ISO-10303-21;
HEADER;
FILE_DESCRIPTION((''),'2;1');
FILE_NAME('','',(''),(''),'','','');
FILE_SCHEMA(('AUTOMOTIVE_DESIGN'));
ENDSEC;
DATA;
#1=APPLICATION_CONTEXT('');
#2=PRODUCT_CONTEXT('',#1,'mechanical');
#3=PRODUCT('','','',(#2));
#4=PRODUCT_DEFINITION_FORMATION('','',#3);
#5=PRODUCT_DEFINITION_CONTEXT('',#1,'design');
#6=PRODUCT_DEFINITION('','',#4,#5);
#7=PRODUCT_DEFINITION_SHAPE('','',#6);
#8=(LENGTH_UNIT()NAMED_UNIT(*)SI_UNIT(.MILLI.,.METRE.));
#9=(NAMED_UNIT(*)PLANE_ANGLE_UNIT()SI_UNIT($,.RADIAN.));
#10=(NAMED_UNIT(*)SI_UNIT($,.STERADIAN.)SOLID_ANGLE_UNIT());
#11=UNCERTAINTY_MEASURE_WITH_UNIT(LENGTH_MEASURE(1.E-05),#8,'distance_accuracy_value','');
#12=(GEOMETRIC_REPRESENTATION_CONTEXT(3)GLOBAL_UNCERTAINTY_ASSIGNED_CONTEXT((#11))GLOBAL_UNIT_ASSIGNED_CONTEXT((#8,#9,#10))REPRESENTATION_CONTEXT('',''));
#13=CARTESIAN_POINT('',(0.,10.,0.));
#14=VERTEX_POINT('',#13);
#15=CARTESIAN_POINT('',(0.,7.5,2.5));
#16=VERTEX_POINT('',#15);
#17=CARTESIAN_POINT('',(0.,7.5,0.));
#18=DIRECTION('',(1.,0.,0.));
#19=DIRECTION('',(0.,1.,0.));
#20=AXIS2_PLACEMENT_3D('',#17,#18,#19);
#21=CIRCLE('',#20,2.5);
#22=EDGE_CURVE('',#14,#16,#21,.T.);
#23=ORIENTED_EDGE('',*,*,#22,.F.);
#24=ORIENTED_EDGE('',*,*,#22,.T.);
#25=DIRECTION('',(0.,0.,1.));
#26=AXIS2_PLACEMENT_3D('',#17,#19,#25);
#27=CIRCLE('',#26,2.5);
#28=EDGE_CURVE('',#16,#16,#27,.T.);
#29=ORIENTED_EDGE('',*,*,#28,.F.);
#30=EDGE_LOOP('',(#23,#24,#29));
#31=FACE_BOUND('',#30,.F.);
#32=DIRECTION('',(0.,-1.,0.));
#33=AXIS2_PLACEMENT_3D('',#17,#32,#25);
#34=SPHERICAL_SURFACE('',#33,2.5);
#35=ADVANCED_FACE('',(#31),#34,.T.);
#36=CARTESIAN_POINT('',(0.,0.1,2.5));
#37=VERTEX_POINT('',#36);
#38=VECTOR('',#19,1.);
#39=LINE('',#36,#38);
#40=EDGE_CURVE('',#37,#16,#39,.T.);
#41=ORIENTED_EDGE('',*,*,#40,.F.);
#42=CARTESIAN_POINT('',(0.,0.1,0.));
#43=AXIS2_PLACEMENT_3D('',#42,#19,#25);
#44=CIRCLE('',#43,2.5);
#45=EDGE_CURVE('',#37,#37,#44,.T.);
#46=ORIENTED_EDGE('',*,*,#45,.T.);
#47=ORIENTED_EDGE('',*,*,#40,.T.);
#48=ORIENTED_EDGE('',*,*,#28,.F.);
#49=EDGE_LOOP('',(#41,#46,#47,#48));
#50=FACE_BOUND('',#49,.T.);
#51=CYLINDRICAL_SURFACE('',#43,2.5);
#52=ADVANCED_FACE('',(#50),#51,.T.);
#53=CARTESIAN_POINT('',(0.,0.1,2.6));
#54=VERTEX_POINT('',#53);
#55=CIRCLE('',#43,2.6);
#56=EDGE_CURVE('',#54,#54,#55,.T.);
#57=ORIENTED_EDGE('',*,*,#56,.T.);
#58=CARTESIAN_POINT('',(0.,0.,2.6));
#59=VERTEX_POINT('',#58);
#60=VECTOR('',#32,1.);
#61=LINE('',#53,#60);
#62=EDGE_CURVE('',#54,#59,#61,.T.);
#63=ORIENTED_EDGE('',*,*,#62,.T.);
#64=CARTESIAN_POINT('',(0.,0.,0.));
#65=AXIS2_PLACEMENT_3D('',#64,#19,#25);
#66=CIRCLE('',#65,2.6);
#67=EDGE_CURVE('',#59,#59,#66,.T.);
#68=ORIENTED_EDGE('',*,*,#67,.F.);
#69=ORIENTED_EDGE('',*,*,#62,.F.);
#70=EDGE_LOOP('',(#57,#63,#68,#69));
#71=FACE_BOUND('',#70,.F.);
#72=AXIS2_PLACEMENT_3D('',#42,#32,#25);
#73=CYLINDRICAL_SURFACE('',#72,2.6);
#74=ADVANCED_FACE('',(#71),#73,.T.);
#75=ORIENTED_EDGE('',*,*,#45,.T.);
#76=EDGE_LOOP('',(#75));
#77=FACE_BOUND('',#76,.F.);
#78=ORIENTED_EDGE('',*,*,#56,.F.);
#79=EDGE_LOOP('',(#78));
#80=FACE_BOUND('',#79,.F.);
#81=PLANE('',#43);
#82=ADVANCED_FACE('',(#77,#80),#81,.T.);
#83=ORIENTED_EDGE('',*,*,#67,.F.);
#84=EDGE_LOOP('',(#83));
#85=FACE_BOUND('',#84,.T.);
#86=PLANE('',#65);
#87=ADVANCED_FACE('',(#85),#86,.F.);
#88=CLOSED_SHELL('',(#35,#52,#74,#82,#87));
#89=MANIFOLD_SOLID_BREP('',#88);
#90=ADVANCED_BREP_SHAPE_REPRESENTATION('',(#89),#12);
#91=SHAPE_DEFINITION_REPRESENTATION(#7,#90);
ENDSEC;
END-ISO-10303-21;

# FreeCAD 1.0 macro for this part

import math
import FreeCAD as App
import Part
import Sketcher
from FreeCAD import Vector

doc = App.newDocument("Part")
params = doc.addObject("Spreadsheet::Sheet", "Params")
for row, (alias, value) in enumerate([
    ("sketch1_radius", "2.5 mm"),
    ("sketch1_width", "10 mm"),
    ("sketch1_width2", "0.1 mm"),
    ("revolution_angle", "360 deg"),
], start=1):
    params.set(f"A{row}", alias)
    params.set(f"B{row}", "=" + value)
    params.setAlias(f"B{row}", alias)

body = doc.addObject("PartDesign::Body", "Body")

# Sketch on YZ plane
sketch1 = doc.addObject("Sketcher::SketchObject", "Sketch")
body.addObject(sketch1)
sketch1.AttachmentSupport = (doc.YZ_Plane, [""])
sketch1.MapMode = "FlatFace"
sketch1.addGeometry([
    Part.LineSegment(Vector(0, 2.6, 0), Vector(0, 0, 0)),  # 0
    Part.LineSegment(Vector(0, 0, 0), Vector(10, 0, 0)),  # 1
    Part.ArcOfCircle(Part.Circle(Vector(7.5, 0, 0), Vector(0, 0, 1), 2.5), math.radians(0), math.radians(90)),  # 2
    Part.LineSegment(Vector(7.5, 2.5, 0), Vector(0.1, 2.5, 0)),  # 3
    Part.LineSegment(Vector(0.1, 2.5, 0), Vector(0.1, 2.6, 0)),  # 4
    Part.LineSegment(Vector(0.1, 2.6, 0), Vector(0, 2.6, 0)),  # 5
], False)
sketch1.addConstraint([
    Sketcher.Constraint("Coincident", 0, 2, 1, 1),
    Sketcher.Constraint("Coincident", 1, 2, 2, 1),
    Sketcher.Constraint("Tangent", 2, 2, 3, 1),
    Sketcher.Constraint("Coincident", 3, 2, 4, 1),
    Sketcher.Constraint("Coincident", 4, 2, 5, 1),
    Sketcher.Constraint("Coincident", 5, 2, 0, 1),
    Sketcher.Constraint("Vertical", 0),
    Sketcher.Constraint("Horizontal", 1),
    Sketcher.Constraint("Horizontal", 3),
    Sketcher.Constraint("Vertical", 4),
    Sketcher.Constraint("Horizontal", 5),
    Sketcher.Constraint("Coincident", 0, 2, -1, 1),
    Sketcher.Constraint("PointOnObject", 2, 3, -1),
    Sketcher.Constraint("Equal", 5, 4),
    Sketcher.Constraint("Radius", 2, 2.5),
    Sketcher.Constraint("DistanceX", 1, 1, 1, 2, 10.0),
    Sketcher.Constraint("DistanceX", 5, 2, 5, 1, 0.1),
])
sketch1.setExpression("Constraints[14]", "Params.sketch1_radius")
sketch1.setExpression("Constraints[15]", "Params.sketch1_width")
sketch1.setExpression("Constraints[16]", "Params.sketch1_width2")
revolution = doc.addObject("PartDesign::Revolution", "Revolution")
body.addObject(revolution)
revolution.Profile = sketch1
revolution.ReferenceAxis = (sketch1, ["H_Axis"])
revolution.setExpression("Angle", "Params.revolution_angle")

doc.recompute()
